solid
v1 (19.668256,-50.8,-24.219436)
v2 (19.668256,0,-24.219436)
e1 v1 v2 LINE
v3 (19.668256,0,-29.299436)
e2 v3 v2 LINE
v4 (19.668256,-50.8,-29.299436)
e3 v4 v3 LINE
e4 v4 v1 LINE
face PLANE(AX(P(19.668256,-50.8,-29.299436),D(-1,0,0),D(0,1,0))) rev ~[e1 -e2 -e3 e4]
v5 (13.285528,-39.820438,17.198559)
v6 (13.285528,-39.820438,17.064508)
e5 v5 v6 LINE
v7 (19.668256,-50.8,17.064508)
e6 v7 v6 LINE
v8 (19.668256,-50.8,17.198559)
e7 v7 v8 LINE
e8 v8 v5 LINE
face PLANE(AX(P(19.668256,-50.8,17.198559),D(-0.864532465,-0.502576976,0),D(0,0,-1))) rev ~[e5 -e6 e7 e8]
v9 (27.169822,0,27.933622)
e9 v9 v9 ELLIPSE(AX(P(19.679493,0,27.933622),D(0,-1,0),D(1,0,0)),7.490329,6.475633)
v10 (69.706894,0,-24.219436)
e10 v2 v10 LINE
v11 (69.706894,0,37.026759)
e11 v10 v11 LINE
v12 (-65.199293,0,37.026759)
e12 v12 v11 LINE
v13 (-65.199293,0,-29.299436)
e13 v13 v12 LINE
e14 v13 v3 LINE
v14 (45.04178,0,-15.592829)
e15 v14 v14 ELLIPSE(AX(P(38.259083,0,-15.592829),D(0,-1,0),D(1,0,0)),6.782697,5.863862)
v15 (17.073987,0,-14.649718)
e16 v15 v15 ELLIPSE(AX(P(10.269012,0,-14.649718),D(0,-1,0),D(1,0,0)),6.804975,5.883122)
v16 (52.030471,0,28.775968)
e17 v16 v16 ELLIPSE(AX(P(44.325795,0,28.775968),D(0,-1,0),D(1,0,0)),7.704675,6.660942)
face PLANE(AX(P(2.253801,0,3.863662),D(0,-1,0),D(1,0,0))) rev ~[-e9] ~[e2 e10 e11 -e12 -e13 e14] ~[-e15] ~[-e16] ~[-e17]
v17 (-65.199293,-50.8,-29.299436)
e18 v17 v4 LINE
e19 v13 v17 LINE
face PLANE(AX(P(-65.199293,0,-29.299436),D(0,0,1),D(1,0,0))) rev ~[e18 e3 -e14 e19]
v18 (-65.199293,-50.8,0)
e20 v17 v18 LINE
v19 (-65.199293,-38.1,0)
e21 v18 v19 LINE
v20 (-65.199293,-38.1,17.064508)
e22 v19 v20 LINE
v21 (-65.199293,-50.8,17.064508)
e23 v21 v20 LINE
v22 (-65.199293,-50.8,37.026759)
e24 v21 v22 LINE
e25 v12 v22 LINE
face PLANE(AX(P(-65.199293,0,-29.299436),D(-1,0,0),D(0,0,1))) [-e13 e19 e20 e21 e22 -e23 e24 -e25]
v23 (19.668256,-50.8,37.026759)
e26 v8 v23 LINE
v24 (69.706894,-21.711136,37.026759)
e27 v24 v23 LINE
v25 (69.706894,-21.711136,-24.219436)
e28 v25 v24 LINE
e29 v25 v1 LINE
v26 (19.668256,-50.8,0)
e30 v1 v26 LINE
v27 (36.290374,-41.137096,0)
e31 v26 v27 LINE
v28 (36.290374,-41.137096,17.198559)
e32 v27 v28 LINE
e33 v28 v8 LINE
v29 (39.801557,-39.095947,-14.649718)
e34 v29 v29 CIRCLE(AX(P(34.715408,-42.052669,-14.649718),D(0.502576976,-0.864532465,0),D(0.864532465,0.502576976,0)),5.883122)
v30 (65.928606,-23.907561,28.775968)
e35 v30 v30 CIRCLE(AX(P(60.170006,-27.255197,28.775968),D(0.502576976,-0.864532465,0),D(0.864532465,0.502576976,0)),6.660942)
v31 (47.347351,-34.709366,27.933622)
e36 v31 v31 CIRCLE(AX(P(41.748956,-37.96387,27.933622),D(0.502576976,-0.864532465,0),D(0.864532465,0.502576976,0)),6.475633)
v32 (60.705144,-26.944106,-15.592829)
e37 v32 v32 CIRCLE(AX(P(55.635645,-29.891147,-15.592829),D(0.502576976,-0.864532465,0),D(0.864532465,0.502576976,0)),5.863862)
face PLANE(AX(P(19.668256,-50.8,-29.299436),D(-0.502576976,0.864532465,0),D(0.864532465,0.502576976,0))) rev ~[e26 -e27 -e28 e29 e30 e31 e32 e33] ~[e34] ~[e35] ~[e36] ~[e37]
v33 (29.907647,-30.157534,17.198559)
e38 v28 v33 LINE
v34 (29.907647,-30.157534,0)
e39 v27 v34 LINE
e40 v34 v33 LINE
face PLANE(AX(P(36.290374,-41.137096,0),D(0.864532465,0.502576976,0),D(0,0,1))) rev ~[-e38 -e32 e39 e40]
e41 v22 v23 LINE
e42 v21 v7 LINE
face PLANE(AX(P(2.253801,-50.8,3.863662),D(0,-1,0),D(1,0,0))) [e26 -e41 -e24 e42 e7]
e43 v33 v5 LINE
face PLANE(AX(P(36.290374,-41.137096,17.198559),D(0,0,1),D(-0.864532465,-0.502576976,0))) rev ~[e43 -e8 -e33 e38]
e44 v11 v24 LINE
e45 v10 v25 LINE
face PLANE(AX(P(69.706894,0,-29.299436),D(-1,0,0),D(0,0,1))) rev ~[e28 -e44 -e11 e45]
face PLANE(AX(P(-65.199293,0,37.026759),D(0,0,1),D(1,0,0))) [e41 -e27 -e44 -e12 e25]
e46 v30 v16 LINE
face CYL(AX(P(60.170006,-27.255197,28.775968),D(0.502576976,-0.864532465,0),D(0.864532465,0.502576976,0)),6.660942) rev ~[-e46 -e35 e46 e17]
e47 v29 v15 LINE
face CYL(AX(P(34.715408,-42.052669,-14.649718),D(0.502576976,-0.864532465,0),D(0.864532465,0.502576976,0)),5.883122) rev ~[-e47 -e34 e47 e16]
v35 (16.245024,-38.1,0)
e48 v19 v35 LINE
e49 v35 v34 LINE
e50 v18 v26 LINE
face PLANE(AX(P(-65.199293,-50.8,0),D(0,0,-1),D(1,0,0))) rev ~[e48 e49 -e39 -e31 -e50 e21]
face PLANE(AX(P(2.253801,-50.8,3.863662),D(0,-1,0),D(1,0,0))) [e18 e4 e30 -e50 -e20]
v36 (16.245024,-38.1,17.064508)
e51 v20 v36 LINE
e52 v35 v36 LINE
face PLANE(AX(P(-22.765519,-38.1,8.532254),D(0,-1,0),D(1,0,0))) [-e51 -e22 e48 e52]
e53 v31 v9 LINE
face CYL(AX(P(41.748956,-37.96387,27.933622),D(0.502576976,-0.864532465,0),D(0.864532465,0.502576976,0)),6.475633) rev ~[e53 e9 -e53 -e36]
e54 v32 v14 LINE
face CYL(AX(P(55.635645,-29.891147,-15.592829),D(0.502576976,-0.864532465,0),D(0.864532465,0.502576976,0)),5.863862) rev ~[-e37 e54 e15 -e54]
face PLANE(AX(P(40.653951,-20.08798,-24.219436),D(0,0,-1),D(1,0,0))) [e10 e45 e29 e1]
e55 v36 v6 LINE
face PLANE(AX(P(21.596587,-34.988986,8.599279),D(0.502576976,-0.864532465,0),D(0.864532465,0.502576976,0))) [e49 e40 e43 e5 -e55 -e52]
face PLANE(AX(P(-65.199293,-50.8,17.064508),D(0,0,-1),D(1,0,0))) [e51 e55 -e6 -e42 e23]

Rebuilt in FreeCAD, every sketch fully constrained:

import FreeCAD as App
import Part
import Sketcher
from FreeCAD import Vector
Q = App.Units.Quantity


def add_polygon(sketch, points):
    """Adds a closed chain of lines whose ends are joined by coincident constraints."""
    first, n = sketch.GeometryCount, len(points)
    for a, b in zip(points, points[1:] + points[:1]):
        sketch.addGeometry(Part.LineSegment(App.Vector(*a, 0), App.Vector(*b, 0)), False)
    for i in range(n):
        sketch.addConstraint(Sketcher.Constraint("Coincident", first + i, 2, first + (i + 1) % n, 1))

doc = App.newDocument("Part")
body = doc.addObject("PartDesign::Body", "Body")

# Sketch on XZ plane
sketch1 = doc.addObject("Sketcher::SketchObject", "Sketch")
body.addObject(sketch1)
sketch1.AttachmentSupport = (doc.XZ_Plane, [""])
sketch1.MapMode = "FlatFace"
add_polygon(sketch1, [(-65, 37), (-65, -29), (70, -29), (70, 37)])  # lines 0-3
sketch1.addConstraint([
    Sketcher.Constraint("Vertical", 0),
    Sketcher.Constraint("Horizontal", 1),
    Sketcher.Constraint("Vertical", 2),
    Sketcher.Constraint("Horizontal", 3),
    Sketcher.Constraint("DistanceX", 1, 1, 1, 2, 134.906188),
    Sketcher.Constraint("DistanceY", 0, 2, 0, 1, 66.326195),
    Sketcher.Constraint("DistanceY", -1, 1, 2, 2, 37.026759),
    Sketcher.Constraint("DistanceX", 0, 2, -1, 1, 65.199293),
])
pad1 = doc.addObject("PartDesign::Pad", "Pad")
body.addObject(pad1)
pad1.Profile = sketch1
pad1.Length = Q("2 in")

# Sketch on XY plane
sketch2 = doc.addObject("Sketcher::SketchObject", "Sketch001")
body.addObject(sketch2)
sketch2.AttachmentSupport = (doc.XY_Plane, [""])
sketch2.MapMode = "FlatFace"
sketch2.AttachmentOffset = App.Placement(Vector(0, 0, -29.299436), App.Rotation())
add_polygon(sketch2, [(70, -51), (20, -51), (70, -22)])  # lines 0-2
sketch2.addConstraint([
    Sketcher.Constraint("Horizontal", 0),
    Sketcher.Constraint("Vertical", 2),
    Sketcher.Constraint("DistanceY", 0, 2, -1, 1, Q("2 in")),
    Sketcher.Constraint("DistanceX", 0, 2, 0, 1, 50.038639),
    Sketcher.Constraint("Distance", 1, 57.879421),
    Sketcher.Constraint("DistanceX", -1, 1, 0, 2, 19.668256),
])
pocket1 = doc.addObject("PartDesign::Pocket", "Pocket")
body.addObject(pocket1)
pocket1.Profile = sketch2
pocket1.Type = "ThroughAll"
pocket1.Reversed = True

# Sketch on XZ plane
sketch3 = doc.addObject("Sketcher::SketchObject", "Sketch002")
body.addObject(sketch3)
sketch3.AttachmentSupport = (doc.XZ_Plane, [""])
sketch3.MapMode = "FlatFace"
sketch3.AttachmentOffset = App.Placement(Vector(0, 0, 2 * 25.4), App.Rotation())
add_polygon(sketch3, [(-65, 17), (-65, 0), (20, 0), (20, 17)])  # lines 0-3
sketch3.addConstraint([
    Sketcher.Constraint("Vertical", 0),
    Sketcher.Constraint("Horizontal", 1),
    Sketcher.Constraint("Vertical", 2),
    Sketcher.Constraint("Horizontal", 3),
    Sketcher.Constraint("PointOnObject", 0, 2, -1),
    Sketcher.Constraint("DistanceX", 1, 1, 1, 2, 84.867549),
    Sketcher.Constraint("DistanceY", 0, 2, 0, 1, 17.064508),
    Sketcher.Constraint("DistanceX", 0, 2, -1, 1, 65.199293),
])
pocket2 = doc.addObject("PartDesign::Pocket", "Pocket001")
body.addObject(pocket2)
pocket2.Profile = sketch3
pocket2.Length = Q("0.5 in")

# Sketch on an angled plane
sketch4 = doc.addObject("Sketcher::SketchObject", "Sketch003")
body.addObject(sketch4)
sketch4.Placement = App.Placement(Vector(27.04018, -46.514494, 0), App.Rotation(Vector(0.864532465, 0.502576976, 0), Vector(0, 0, 1), Vector(0.502576976, -0.864532465, 0), "ZXY"))
add_polygon(sketch4, [(-9, 0), (11, 0), (11, 17), (-9, 17)])  # lines 0-3
sketch4.addConstraint([
    Sketcher.Constraint("Horizontal", 0),
    Sketcher.Constraint("Vertical", 1),
    Sketcher.Constraint("Horizontal", 2),
    Sketcher.Constraint("Vertical", 3),
    Sketcher.Constraint("PointOnObject", 0, 2, -1),
    Sketcher.Constraint("DistanceY", 1, 1, 1, 2, 17.198559),
    Sketcher.Constraint("DistanceX", 0, 1, 0, 2, 19.226714),
    Sketcher.Constraint("DistanceX", -1, 1, 0, 2, 10.699649),
])
pocket3 = doc.addObject("PartDesign::Pocket", "Pocket002")
body.addObject(pocket3)
pocket3.Profile = sketch4
pocket3.Length = Q("0.5 in")

# Sketch on an angled plane
sketch5 = doc.addObject("Sketcher::SketchObject", "Sketch004")
body.addObject(sketch5)
sketch5.Placement = App.Placement(Vector(27.04018, -46.514494, 0), App.Rotation(Vector(0.864532465, 0.502576976, 0), Vector(0, 0, 1), Vector(0.502576976, -0.864532465, 0), "ZXY"))
sketch5.addGeometry(Part.Circle(Vector(9, -15, 0), Vector(0, 0, 1), 6), False)
sketch5.addConstraint([
    Sketcher.Constraint("Diameter", 0, 11.766244),
    Sketcher.Constraint("DistanceY", 0, 3, -1, 1, 14.649718),
    Sketcher.Constraint("DistanceX", -1, 1, 0, 3, 8.877894),
])
pocket4 = doc.addObject("PartDesign::Pocket", "Pocket003")
body.addObject(pocket4)
pocket4.Profile = sketch5
pocket4.Type = "ThroughAll"

# Sketch on an angled plane
sketch6 = doc.addObject("Sketcher::SketchObject", "Sketch005")
body.addObject(sketch6)
sketch6.Placement = App.Placement(Vector(27.04018, -46.514494, 0), App.Rotation(Vector(0.864532465, 0.502576976, 0), Vector(0, 0, 1), Vector(0.502576976, -0.864532465, 0), "ZXY"))
sketch6.addGeometry([
    Part.Circle(Vector(33, -16, 0), Vector(0, 0, 1), 6),
    Part.Circle(Vector(17, 28, 0), Vector(0, 0, 1), 6),
    Part.Circle(Vector(38, 29, 0), Vector(0, 0, 1), 7),
], False)
sketch6.addConstraint([
    Sketcher.Constraint("Diameter", 0, 11.727723),
    Sketcher.Constraint("Diameter", 1, 12.951265),
    Sketcher.Constraint("Diameter", 2, 13.321884),
    Sketcher.Constraint("DistanceX", -1, 1, 0, 3, 33.076219),
    Sketcher.Constraint("DistanceY", 0, 3, -1, 1, 15.592829),
    Sketcher.Constraint("DistanceX", -1, 1, 1, 3, 17.013561),
    Sketcher.Constraint("DistanceY", -1, 1, 1, 3, 27.933622),
    Sketcher.Constraint("DistanceX", -1, 1, 2, 3, 38.321089),
    Sketcher.Constraint("DistanceY", -1, 1, 2, 3, 28.775968),
])
pocket5 = doc.addObject("PartDesign::Pocket", "Pocket004")
body.addObject(pocket5)
pocket5.Profile = sketch6
pocket5.Type = "ThroughAll"

# Sketch on XY plane
sketch7 = doc.addObject("Sketcher::SketchObject", "Sketch006")
body.addObject(sketch7)
sketch7.AttachmentSupport = (doc.XY_Plane, [""])
sketch7.MapMode = "FlatFace"
sketch7.AttachmentOffset = App.Placement(Vector(0, 0, -29.299436), App.Rotation())
add_polygon(sketch7, [(70, -22), (20, -51), (20, 0), (70, 0)])  # lines 0-3
sketch7.addConstraint([
    Sketcher.Constraint("Vertical", 1),
    Sketcher.Constraint("Horizontal", 2),
    Sketcher.Constraint("Vertical", 3),
    Sketcher.Constraint("PointOnObject", 1, 2, -1),
    Sketcher.Constraint("DistanceY", 1, 1, 1, 2, Q("2 in")),
    Sketcher.Constraint("DistanceX", 2, 1, 2, 2, 50.038639),
    Sketcher.Constraint("Distance", 0, 57.879421),
    Sketcher.Constraint("DistanceX", -1, 1, 0, 2, 19.668256),
])
pocket6 = doc.addObject("PartDesign::Pocket", "Pocket005")
body.addObject(pocket6)
pocket6.Profile = sketch7
pocket6.Length = Q("0.2 in")
pocket6.Reversed = True

doc.recompute()
